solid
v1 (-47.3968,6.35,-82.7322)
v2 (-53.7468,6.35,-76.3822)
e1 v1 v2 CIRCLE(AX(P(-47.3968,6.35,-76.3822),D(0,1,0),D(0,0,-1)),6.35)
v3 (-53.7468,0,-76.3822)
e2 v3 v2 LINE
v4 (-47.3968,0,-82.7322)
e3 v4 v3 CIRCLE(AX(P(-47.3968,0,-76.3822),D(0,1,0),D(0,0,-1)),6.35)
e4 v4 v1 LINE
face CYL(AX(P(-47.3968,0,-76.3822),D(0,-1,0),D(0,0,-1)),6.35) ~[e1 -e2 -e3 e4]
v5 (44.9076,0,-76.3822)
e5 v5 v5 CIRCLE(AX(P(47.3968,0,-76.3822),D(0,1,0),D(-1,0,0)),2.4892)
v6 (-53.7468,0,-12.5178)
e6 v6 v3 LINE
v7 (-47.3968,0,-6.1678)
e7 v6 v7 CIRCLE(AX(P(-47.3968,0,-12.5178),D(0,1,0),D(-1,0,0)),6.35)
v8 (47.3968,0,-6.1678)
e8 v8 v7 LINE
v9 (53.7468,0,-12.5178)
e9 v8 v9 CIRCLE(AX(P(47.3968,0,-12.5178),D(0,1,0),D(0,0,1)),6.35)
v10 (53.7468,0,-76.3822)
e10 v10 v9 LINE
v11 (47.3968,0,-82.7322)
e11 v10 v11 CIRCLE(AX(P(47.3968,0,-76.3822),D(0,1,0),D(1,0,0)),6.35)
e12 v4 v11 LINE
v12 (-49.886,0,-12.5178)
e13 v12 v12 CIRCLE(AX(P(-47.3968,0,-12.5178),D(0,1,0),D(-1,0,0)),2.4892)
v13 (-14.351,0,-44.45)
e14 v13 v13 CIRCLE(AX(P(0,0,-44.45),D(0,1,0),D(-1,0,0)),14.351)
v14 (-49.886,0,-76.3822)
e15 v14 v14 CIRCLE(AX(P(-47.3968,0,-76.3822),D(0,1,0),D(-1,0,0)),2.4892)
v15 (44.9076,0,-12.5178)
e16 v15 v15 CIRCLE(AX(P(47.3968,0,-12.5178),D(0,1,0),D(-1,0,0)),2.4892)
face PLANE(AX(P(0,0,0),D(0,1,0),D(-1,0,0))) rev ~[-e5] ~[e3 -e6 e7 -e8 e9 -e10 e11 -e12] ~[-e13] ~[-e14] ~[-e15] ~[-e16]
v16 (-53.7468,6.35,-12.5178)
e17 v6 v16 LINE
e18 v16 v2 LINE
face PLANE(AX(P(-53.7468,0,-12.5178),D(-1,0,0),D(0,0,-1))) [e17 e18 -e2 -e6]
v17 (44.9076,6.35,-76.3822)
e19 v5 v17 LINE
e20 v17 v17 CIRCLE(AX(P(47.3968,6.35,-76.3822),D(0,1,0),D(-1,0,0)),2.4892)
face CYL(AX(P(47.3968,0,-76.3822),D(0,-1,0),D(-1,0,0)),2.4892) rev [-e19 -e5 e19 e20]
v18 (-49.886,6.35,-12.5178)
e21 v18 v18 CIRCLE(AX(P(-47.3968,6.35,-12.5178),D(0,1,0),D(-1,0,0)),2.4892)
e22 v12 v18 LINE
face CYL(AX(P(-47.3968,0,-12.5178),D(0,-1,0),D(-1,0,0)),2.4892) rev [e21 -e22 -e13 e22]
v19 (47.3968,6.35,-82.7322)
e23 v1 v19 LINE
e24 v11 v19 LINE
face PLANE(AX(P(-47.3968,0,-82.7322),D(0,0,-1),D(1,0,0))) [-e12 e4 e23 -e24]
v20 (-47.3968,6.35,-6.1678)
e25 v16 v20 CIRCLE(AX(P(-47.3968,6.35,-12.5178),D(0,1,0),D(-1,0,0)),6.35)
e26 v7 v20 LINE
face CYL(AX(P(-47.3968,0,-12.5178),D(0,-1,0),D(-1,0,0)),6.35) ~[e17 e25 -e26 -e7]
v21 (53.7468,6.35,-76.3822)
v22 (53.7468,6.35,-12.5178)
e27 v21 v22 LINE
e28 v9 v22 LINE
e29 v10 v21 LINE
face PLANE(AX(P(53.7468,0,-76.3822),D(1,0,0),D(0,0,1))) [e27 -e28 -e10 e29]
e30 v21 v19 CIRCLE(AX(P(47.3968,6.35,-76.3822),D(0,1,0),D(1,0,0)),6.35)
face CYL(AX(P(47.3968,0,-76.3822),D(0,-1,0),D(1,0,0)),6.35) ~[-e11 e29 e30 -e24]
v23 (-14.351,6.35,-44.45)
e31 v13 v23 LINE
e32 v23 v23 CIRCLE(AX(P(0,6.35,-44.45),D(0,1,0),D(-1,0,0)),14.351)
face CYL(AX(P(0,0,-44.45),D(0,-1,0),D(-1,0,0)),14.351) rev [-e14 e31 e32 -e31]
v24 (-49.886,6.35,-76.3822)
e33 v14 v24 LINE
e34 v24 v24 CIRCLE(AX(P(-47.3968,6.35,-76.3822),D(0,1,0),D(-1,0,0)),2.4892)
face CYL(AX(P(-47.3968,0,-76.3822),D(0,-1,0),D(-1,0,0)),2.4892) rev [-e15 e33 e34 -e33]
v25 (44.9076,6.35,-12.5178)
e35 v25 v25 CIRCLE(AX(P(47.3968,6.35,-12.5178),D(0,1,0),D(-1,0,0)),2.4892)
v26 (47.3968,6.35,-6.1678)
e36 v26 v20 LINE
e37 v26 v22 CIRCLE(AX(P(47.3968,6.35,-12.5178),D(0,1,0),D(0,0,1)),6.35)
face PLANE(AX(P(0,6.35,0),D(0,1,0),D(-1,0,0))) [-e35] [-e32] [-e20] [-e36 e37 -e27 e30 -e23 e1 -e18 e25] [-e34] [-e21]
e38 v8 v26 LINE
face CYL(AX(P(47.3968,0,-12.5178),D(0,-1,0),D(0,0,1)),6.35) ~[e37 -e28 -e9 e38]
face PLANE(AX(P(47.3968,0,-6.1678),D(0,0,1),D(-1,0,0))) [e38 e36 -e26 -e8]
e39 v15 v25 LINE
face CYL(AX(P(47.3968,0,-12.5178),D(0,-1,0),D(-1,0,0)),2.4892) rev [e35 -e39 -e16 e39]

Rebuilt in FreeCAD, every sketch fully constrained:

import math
import FreeCAD as App
import Part
import Sketcher
from FreeCAD import Vector
Q = App.Units.Quantity

doc = App.newDocument("Part")
body = doc.addObject("PartDesign::Body", "Body")

sketch1 = doc.addObject("Sketcher::SketchObject", "Sketch")
body.addObject(sketch1)
sketch1.AttachmentSupport = (doc.XZ_Plane, [""])
sketch1.MapMode = "FlatFace"
sketch1.addGeometry(Part.LineSegment(Vector(47.3968, -82.7322, 0), Vector(-47.3968, -82.7322, 0)), False)
sketch1.addGeometry(Part.ArcOfCircle(Part.Circle(Vector(-47.3968, -76.3822, 0), Vector(0, 0, 1), 6.35), math.radians(180), math.radians(270)), False)
sketch1.addGeometry(Part.LineSegment(Vector(-53.7468, -76.3822, 0), Vector(-53.7468, -12.5178, 0)), False)
sketch1.addGeometry(Part.ArcOfCircle(Part.Circle(Vector(-47.3968, -12.5178, 0), Vector(0, 0, 1), 6.35), math.radians(90), math.radians(180)), False)
sketch1.addGeometry(Part.LineSegment(Vector(-47.3968, -6.1678, 0), Vector(47.3968, -6.1678, 0)), False)
sketch1.addGeometry(Part.ArcOfCircle(Part.Circle(Vector(47.3968, -12.5178, 0), Vector(0, 0, 1), 6.35), math.radians(0), math.radians(90)), False)
sketch1.addGeometry(Part.LineSegment(Vector(53.7468, -12.5178, 0), Vector(53.7468, -76.3822, 0)), False)
sketch1.addGeometry(Part.ArcOfCircle(Part.Circle(Vector(47.3968, -76.3822, 0), Vector(0, 0, 1), 6.35), math.radians(-90), math.radians(0)), False)
sketch1.addGeometry(Part.Circle(Vector(47.3968, -76.3822, 0), Vector(0, 0, 1), 2.4892), False)
sketch1.addGeometry(Part.Circle(Vector(-47.3968, -76.3822, 0), Vector(0, 0, 1), 2.4892), False)
sketch1.addGeometry(Part.Circle(Vector(47.3968, -12.5178, 0), Vector(0, 0, 1), 2.4892), False)
sketch1.addGeometry(Part.Circle(Vector(0, -44.45, 0), Vector(0, 0, 1), 14.351), False)
sketch1.addGeometry(Part.Circle(Vector(-47.3968, -12.5178, 0), Vector(0, 0, 1), 2.4892), False)
sketch1.addConstraint(Sketcher.Constraint("Tangent", 0, 2, 1, 2))
sketch1.addConstraint(Sketcher.Constraint("Tangent", 1, 1, 2, 1))
sketch1.addConstraint(Sketcher.Constraint("Tangent", 2, 2, 3, 2))
sketch1.addConstraint(Sketcher.Constraint("Tangent", 3, 1, 4, 1))
sketch1.addConstraint(Sketcher.Constraint("Tangent", 4, 2, 5, 2))
sketch1.addConstraint(Sketcher.Constraint("Tangent", 5, 1, 6, 1))
sketch1.addConstraint(Sketcher.Constraint("Tangent", 6, 2, 7, 2))
sketch1.addConstraint(Sketcher.Constraint("Tangent", 7, 1, 0, 1))
sketch1.addConstraint(Sketcher.Constraint("Horizontal", 0))
sketch1.addConstraint(Sketcher.Constraint("Vertical", 2))
sketch1.addConstraint(Sketcher.Constraint("Horizontal", 4))
sketch1.addConstraint(Sketcher.Constraint("Vertical", 6))
sketch1.addConstraint(Sketcher.Constraint("Coincident", 8, 3, 7, 3))
sketch1.addConstraint(Sketcher.Constraint("Coincident", 9, 3, 1, 3))
sketch1.addConstraint(Sketcher.Constraint("Coincident", 10, 3, 5, 3))
sketch1.addConstraint(Sketcher.Constraint("Coincident", 12, 3, 3, 3))
sketch1.addConstraint(Sketcher.Constraint("Equal", 1, 3))
sketch1.addConstraint(Sketcher.Constraint("Equal", 3, 5))
sketch1.addConstraint(Sketcher.Constraint("Equal", 5, 7))
sketch1.addConstraint(Sketcher.Constraint("Equal", 8, 9))
sketch1.addConstraint(Sketcher.Constraint("Equal", 9, 10))
sketch1.addConstraint(Sketcher.Constraint("Equal", 10, 12))
sketch1.addConstraint(Sketcher.Constraint("PointOnObject", 11, 3, -2))
sketch1.addConstraint(Sketcher.Constraint("Diameter", 11, Q("1.13 in")))
sketch1.addConstraint(Sketcher.Constraint("Radius", 1, Q("0.25 in")))
sketch1.addConstraint(Sketcher.Constraint("Diameter", 8, Q("0.196 in")))
sketch1.addConstraint(Sketcher.Constraint("DistanceY", 11, 3, -1, 1, Q("1.75 in")))
sketch1.addConstraint(Sketcher.Constraint("DistanceX", 0, 2, 0, 1, Q("94.7936 mm")))
sketch1.addConstraint(Sketcher.Constraint("DistanceY", 2, 1, 2, 2, Q("63.8644 mm")))
sketch1.addConstraint(Sketcher.Constraint("DistanceX", 1, 3, -1, 1, Q("47.3968 mm")))
sketch1.addConstraint(Sketcher.Constraint("DistanceY", 1, 3, -1, 1, Q("76.3822 mm")))
pad1 = doc.addObject("PartDesign::Pad", "Pad")
body.addObject(pad1)
pad1.Profile = sketch1
pad1.Length = Q("0.25 in")
pad1.Reversed = True

doc.recompute()
